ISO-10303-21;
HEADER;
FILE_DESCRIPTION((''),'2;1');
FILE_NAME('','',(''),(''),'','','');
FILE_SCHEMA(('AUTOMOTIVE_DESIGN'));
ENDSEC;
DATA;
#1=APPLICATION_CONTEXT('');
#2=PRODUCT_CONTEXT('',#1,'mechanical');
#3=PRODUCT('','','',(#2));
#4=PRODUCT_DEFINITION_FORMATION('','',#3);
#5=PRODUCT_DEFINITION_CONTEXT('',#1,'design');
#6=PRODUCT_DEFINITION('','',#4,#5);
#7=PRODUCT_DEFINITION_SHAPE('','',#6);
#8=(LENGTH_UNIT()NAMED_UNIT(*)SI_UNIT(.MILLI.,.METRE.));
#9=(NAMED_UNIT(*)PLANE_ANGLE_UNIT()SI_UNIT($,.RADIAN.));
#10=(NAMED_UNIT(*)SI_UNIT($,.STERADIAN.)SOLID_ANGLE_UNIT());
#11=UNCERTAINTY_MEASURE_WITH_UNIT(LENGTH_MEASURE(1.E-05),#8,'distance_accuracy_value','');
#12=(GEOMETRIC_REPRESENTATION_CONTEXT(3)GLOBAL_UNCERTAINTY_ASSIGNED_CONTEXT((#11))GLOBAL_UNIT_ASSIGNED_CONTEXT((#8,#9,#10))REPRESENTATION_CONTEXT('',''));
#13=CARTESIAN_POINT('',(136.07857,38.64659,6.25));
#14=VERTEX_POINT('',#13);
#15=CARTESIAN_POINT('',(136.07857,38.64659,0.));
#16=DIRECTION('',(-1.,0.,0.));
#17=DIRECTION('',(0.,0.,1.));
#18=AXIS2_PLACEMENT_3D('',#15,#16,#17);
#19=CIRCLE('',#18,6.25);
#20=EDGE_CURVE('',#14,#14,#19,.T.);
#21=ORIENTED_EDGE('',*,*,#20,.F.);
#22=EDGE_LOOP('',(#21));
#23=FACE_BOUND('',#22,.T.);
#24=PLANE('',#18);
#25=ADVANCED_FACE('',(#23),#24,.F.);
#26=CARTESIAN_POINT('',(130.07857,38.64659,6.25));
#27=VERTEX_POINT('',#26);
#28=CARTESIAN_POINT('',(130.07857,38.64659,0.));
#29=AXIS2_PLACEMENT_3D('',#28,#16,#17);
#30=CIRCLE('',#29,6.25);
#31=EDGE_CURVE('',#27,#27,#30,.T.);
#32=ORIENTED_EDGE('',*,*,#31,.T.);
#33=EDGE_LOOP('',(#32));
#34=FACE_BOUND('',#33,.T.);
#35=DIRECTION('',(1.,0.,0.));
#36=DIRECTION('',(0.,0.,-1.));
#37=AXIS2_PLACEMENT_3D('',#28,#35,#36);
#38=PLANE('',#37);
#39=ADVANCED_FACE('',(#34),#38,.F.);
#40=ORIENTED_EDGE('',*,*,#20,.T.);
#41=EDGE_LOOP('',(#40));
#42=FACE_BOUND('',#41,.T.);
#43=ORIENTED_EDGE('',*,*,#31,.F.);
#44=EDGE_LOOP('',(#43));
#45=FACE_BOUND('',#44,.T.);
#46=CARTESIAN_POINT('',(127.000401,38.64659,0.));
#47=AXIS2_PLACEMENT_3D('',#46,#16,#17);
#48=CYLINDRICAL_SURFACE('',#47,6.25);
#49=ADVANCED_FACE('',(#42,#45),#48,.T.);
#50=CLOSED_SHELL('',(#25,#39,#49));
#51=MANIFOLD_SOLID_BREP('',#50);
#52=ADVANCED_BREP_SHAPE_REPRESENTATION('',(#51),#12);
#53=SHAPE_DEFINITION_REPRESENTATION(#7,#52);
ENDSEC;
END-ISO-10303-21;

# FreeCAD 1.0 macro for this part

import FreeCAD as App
import Part
import Sketcher
Q = App.Units.Quantity

doc = App.newDocument("Part")
body = doc.addObject("PartDesign::Body", "Body")

# Sketch on XY plane
sketch1 = body.newObject("Sketcher::SketchObject", "Sketch")
sketch1.AttachmentSupport = (doc.getObject("XY_Plane"), [""])
sketch1.MapMode = "FlatFace"
sketch1.addGeometry(Part.LineSegment(App.Vector(130.07857, 44.89659, 0), App.Vector(130.07857, 38.64659, 0)), False)
sketch1.addGeometry(Part.LineSegment(App.Vector(130.07857, 38.64659, 0), App.Vector(136.07857, 38.64659, 0)), False)
sketch1.addGeometry(Part.LineSegment(App.Vector(136.07857, 38.64659, 0), App.Vector(136.07857, 44.89659, 0)), False)
sketch1.addGeometry(Part.LineSegment(App.Vector(136.07857, 44.89659, 0), App.Vector(130.07857, 44.89659, 0)), False)
sketch1.addGeometry(Part.LineSegment(App.Vector(130.07857, 38.64659, 0), App.Vector(136.07857, 38.64659, 0)), True)  # axis
sketch1.addConstraint(Sketcher.Constraint("Coincident", 0, 2, 1, 1))
sketch1.addConstraint(Sketcher.Constraint("Coincident", 1, 2, 2, 1))
sketch1.addConstraint(Sketcher.Constraint("Coincident", 2, 2, 3, 1))
sketch1.addConstraint(Sketcher.Constraint("Coincident", 3, 2, 0, 1))
sketch1.addConstraint(Sketcher.Constraint("Vertical", 0))
sketch1.addConstraint(Sketcher.Constraint("Horizontal", 1))
sketch1.addConstraint(Sketcher.Constraint("Vertical", 2))
sketch1.addConstraint(Sketcher.Constraint("Horizontal", 3))
sketch1.addConstraint(Sketcher.Constraint("Horizontal", 4))
sketch1.addConstraint(Sketcher.Constraint("Coincident", 4, 1, 0, 2))
sketch1.addConstraint(Sketcher.Constraint("Vertical", 2, 2, 4, 2))
sketch1.addConstraint(Sketcher.Constraint("DistanceX", 1, 1, 1, 2, Q("6 mm")))
sketch1.addConstraint(Sketcher.Constraint("DistanceY", 0, 2, 0, 1, Q("6.25 mm")))
sketch1.addConstraint(Sketcher.Constraint("DistanceX", -1, 1, 0, 2, Q("130.07857 mm")))
sketch1.addConstraint(Sketcher.Constraint("DistanceY", -1, 1, 0, 2, Q("38.64659 mm")))
revolution = body.newObject("PartDesign::Revolution", "Revolution")
revolution.Profile = sketch1
revolution.ReferenceAxis = (sketch1, ["Axis0"])
revolution.Angle = 360

doc.recompute()
